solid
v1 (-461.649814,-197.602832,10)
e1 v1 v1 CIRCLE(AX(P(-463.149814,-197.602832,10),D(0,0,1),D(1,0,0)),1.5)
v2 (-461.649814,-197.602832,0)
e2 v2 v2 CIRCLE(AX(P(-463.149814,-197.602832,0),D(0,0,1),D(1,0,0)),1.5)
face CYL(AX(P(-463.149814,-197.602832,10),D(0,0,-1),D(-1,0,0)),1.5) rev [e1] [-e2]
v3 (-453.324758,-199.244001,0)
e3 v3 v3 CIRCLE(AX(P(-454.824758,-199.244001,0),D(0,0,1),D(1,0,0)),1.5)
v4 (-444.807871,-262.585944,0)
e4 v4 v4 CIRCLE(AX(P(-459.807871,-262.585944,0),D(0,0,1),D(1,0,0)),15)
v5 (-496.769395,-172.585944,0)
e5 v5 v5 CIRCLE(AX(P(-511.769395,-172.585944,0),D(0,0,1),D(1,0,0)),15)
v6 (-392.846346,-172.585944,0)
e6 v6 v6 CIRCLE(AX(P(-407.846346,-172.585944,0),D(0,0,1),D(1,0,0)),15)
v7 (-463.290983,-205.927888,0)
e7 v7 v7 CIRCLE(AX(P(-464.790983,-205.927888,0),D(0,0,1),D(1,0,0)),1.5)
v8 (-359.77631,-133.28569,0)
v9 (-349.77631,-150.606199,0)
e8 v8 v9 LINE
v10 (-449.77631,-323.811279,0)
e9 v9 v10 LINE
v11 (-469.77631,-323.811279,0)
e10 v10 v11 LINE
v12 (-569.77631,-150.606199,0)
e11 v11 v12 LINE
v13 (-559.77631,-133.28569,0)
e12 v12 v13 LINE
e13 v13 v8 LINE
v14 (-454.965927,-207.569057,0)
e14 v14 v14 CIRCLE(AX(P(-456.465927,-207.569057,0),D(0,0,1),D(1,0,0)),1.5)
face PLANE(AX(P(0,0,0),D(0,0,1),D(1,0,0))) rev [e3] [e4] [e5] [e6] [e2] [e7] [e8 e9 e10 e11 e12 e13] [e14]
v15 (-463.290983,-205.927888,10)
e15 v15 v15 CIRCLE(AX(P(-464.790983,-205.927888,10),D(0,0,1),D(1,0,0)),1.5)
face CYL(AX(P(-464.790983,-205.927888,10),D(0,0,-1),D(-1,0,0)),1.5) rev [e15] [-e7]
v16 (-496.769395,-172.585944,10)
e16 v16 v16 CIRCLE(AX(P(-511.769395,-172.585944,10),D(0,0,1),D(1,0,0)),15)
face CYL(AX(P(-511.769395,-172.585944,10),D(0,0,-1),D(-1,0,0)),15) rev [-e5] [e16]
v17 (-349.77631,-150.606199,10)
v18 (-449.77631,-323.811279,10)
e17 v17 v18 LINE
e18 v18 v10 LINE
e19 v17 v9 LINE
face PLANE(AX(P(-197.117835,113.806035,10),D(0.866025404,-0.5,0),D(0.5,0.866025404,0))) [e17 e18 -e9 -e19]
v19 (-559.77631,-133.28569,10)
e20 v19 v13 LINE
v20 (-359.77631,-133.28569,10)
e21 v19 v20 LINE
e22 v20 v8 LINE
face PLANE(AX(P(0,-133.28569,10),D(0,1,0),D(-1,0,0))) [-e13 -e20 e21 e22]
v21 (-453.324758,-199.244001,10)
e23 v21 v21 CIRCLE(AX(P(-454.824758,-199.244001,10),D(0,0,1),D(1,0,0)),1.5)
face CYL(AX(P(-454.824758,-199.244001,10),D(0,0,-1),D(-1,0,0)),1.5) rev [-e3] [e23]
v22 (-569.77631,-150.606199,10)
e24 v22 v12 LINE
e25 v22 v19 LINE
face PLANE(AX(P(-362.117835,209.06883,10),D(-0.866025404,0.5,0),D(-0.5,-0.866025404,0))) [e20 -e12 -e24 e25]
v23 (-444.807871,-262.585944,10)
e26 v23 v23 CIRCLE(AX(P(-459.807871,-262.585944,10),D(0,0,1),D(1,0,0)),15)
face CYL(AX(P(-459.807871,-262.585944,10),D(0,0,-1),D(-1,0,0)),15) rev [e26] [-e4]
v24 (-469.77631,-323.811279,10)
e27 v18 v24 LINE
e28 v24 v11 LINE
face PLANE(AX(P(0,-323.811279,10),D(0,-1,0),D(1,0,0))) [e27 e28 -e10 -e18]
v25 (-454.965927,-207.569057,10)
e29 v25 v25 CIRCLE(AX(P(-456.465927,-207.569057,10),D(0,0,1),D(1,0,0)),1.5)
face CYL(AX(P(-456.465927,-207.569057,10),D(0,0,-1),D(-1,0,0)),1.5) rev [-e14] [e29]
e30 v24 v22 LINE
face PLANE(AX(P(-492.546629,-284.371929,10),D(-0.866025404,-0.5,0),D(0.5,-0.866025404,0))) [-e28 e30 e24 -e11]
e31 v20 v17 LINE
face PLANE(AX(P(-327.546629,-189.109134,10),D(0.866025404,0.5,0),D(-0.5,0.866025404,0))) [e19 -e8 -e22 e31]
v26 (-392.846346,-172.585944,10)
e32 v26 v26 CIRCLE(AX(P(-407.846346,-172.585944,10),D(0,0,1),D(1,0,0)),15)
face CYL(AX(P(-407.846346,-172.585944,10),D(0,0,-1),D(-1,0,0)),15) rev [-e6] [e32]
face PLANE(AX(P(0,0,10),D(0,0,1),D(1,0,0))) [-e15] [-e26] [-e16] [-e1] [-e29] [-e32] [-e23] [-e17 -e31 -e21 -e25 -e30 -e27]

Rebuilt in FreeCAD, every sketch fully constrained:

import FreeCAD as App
import Part
import Sketcher
from FreeCAD import Vector
Q = App.Units.Quantity

doc = App.newDocument("Part")
body = doc.addObject("PartDesign::Body", "Body")

# Sketch on XY plane
sketch1 = body.newObject("Sketcher::SketchObject", "Sketch")
sketch1.AttachmentSupport = (doc.getObject("XY_Plane"), [""])
sketch1.MapMode = "FlatFace"
sketch1.addGeometry(Part.LineSegment(Vector(-449.8, -323.8, 0), Vector(-349.8, -150.6, 0)), False)
sketch1.addGeometry(Part.LineSegment(Vector(-349.8, -150.6, 0), Vector(-359.8, -133.3, 0)), False)
sketch1.addGeometry(Part.LineSegment(Vector(-359.8, -133.3, 0), Vector(-559.8, -133.3, 0)), False)
sketch1.addGeometry(Part.LineSegment(Vector(-559.8, -133.3, 0), Vector(-569.8, -150.6, 0)), False)
sketch1.addGeometry(Part.LineSegment(Vector(-569.8, -150.6, 0), Vector(-469.8, -323.8, 0)), False)
sketch1.addGeometry(Part.LineSegment(Vector(-469.8, -323.8, 0), Vector(-449.8, -323.8, 0)), False)
sketch1.addGeometry(Part.Circle(Vector(-459.8, -262.6, 0), Vector(0, 0, 1), 15), False)
sketch1.addGeometry(Part.Circle(Vector(-456.5, -207.6, 0), Vector(0, 0, 1), 1.5), False)
sketch1.addGeometry(Part.Circle(Vector(-454.8, -199.2, 0), Vector(0, 0, 1), 1.5), False)
sketch1.addGeometry(Part.Circle(Vector(-407.8, -172.6, 0), Vector(0, 0, 1), 15), False)
sketch1.addGeometry(Part.Circle(Vector(-464.8, -205.9, 0), Vector(0, 0, 1), 1.5), False)
sketch1.addGeometry(Part.Circle(Vector(-463.1, -197.6, 0), Vector(0, 0, 1), 1.5), False)
sketch1.addGeometry(Part.Circle(Vector(-511.8, -172.6, 0), Vector(0, 0, 1), 15), False)
sketch1.addConstraint(Sketcher.Constraint("Coincident", 0, 2, 1, 1))
sketch1.addConstraint(Sketcher.Constraint("Coincident", 1, 2, 2, 1))
sketch1.addConstraint(Sketcher.Constraint("Coincident", 2, 2, 3, 1))
sketch1.addConstraint(Sketcher.Constraint("Coincident", 3, 2, 4, 1))
sketch1.addConstraint(Sketcher.Constraint("Coincident", 4, 2, 5, 1))
sketch1.addConstraint(Sketcher.Constraint("Coincident", 5, 2, 0, 1))
sketch1.addConstraint(Sketcher.Constraint("Horizontal", 2))
sketch1.addConstraint(Sketcher.Constraint("Horizontal", 5))
sketch1.addConstraint(Sketcher.Constraint("Equal", 7, 8))
sketch1.addConstraint(Sketcher.Constraint("Equal", 6, 9))
sketch1.addConstraint(Sketcher.Constraint("Equal", 8, 10))
sketch1.addConstraint(Sketcher.Constraint("Equal", 10, 11))
sketch1.addConstraint(Sketcher.Constraint("Equal", 9, 12))
sketch1.addConstraint(Sketcher.Constraint("Parallel", 0, 3))
sketch1.addConstraint(Sketcher.Constraint("Parallel", 1, 4))
sketch1.addConstraint(Sketcher.Constraint("Horizontal", 9, 3, 12, 3))
sketch1.addConstraint(Sketcher.Constraint("Horizontal", 0, 2, 3, 2))
sketch1.addConstraint(Sketcher.Constraint("Equal", 1, 3))
sketch1.addConstraint(Sketcher.Constraint("Diameter", 6, Q("30 mm")))
sketch1.addConstraint(Sketcher.Constraint("Diameter", 7, Q("3 mm")))
sketch1.addConstraint(Sketcher.Constraint("DistanceX", 2, 2, 2, 1, Q("200 mm")))
sketch1.addConstraint(Sketcher.Constraint("DistanceX", 5, 1, 5, 2, Q("20 mm")))
sketch1.addConstraint(Sketcher.Constraint("Angle", 0, Q("60 deg")))
sketch1.addConstraint(Sketcher.Constraint("Distance", 0, Q("200 mm")))
sketch1.addConstraint(Sketcher.Constraint("DistanceY", 6, 3, 9, 3, Q("90 mm")))
sketch1.addConstraint(Sketcher.Constraint("DistanceY", 8, 3, -1, 1, Q("199.244001 mm")))
sketch1.addConstraint(Sketcher.Constraint("DistanceY", 0, 2, -1, 1, Q("150.606199 mm")))
sketch1.addConstraint(Sketcher.Constraint("DistanceX", 6, 3, -1, 1, Q("459.807871 mm")))
sketch1.addConstraint(Sketcher.Constraint("DistanceY", 10, 3, -1, 1, Q("205.927888 mm")))
sketch1.addConstraint(Sketcher.Constraint("DistanceY", 11, 3, -1, 1, Q("197.602832 mm")))
sketch1.addConstraint(Sketcher.Constraint("DistanceX", 0, 2, -1, 1, Q("349.77631 mm")))
sketch1.addConstraint(Sketcher.Constraint("DistanceX", 7, 3, 8, 3, Q("1.641169 mm")))
sketch1.addConstraint(Sketcher.Constraint("DistanceX", 8, 3, 9, 3, Q("46.978412 mm")))
sketch1.addConstraint(Sketcher.Constraint("DistanceY", 7, 3, 10, 3, Q("1.641169 mm")))
sketch1.addConstraint(Sketcher.Constraint("DistanceX", 10, 3, 11, 3, Q("1.641169 mm")))
sketch1.addConstraint(Sketcher.Constraint("DistanceX", 11, 3, 9, 3, Q("55.303468 mm")))
sketch1.addConstraint(Sketcher.Constraint("DistanceX", 12, 3, 11, 3, Q("48.61958 mm")))
sketch1.addConstraint(Sketcher.Constraint("DistanceX", 8, 3, 0, 2, Q("105.048448 mm")))
sketch1.addConstraint(Sketcher.Constraint("DistanceY", 6, 3, -1, 1, Q("262.585944 mm")))
pad1 = body.newObject("PartDesign::Pad", "Pad")
pad1.Profile = sketch1
pad1.Length = 10

doc.recompute()
